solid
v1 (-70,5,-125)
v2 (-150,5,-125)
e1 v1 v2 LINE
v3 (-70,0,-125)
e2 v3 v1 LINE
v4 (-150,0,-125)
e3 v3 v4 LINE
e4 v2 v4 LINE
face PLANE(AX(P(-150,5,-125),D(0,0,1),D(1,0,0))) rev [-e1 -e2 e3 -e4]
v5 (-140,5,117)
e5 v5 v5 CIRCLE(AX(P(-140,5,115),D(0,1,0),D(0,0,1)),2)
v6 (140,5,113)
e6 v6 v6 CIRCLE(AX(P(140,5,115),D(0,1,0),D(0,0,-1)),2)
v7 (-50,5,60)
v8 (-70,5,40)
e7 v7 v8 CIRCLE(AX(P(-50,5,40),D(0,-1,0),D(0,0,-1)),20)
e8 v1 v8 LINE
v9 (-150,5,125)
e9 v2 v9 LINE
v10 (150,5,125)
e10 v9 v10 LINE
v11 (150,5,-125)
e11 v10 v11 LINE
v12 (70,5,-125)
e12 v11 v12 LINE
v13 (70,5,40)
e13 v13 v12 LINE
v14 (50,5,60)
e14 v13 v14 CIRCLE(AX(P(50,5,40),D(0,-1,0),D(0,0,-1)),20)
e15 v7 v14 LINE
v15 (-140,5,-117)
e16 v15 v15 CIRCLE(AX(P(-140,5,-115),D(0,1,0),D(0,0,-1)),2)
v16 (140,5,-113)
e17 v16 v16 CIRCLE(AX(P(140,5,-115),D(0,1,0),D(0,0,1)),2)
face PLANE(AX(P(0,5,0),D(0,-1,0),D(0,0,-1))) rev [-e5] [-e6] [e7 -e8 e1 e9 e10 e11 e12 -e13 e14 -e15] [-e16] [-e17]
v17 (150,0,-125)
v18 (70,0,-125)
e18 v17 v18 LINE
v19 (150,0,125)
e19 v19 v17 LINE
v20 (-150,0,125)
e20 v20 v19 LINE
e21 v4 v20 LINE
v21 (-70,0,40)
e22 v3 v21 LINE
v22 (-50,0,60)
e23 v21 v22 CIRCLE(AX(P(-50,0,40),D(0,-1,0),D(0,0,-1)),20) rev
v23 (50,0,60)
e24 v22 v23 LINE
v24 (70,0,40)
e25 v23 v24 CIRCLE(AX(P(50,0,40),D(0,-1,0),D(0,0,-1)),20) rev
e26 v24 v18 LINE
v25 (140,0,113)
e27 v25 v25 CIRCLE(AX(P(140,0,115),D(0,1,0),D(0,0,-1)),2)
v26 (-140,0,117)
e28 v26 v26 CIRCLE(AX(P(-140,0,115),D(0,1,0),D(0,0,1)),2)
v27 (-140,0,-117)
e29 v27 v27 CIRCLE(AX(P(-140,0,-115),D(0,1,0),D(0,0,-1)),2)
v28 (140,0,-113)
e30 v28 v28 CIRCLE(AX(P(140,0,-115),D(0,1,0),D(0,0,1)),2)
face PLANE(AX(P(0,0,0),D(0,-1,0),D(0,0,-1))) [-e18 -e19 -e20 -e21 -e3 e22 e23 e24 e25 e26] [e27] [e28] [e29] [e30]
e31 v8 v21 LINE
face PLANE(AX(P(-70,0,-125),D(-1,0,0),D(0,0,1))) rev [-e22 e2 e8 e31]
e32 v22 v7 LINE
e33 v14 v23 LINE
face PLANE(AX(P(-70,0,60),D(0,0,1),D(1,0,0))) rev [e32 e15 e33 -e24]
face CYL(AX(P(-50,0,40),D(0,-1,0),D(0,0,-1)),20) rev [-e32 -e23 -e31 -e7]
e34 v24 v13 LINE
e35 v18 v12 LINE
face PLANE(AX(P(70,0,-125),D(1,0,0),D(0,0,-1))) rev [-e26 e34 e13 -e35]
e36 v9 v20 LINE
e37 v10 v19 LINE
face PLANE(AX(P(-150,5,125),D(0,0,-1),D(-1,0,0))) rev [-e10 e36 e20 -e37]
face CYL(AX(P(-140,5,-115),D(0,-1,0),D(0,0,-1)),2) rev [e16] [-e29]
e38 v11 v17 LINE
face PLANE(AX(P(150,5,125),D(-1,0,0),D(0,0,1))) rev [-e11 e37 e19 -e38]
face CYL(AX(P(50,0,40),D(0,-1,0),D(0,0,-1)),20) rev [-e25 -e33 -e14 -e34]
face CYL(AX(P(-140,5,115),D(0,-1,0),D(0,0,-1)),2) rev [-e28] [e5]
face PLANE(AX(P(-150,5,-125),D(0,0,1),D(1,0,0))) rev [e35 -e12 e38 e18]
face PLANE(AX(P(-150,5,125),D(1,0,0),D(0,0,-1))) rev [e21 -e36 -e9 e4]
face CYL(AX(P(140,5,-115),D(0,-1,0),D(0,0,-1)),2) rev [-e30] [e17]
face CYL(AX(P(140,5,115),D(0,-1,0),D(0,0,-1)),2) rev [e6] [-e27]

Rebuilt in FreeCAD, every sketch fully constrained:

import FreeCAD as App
import Part
import Sketcher
Q = App.Units.Quantity


def edges_at(feature, points):
    """Names of the edges that pass closest to the given points."""
    edges = feature.Shape.Edges
    near = lambda p: min(range(len(edges)), key=lambda i: edges[i].distToShape(Part.Vertex(*p))[0])
    return sorted({f"Edge{near(p) + 1}" for p in points})

doc = App.newDocument("Part")
params = doc.addObject("Spreadsheet::Sheet", "Params")
for row, (alias, value) in enumerate([
    ("sketch1_diameter", "4 mm"),
    ("sketch1_width", "300 mm"),
    ("sketch1_height", "250 mm"),
    ("pad1_length", "5 mm"),
    ("sketch2_width", "140 mm"),
    ("sketch2_height", "185 mm"),
    ("fillet_radius", "20 mm"),
], start=1):
    params.set(f"A{row}", alias)
    params.set(f"B{row}", "=" + value)
    params.setAlias(f"B{row}", alias)

body = doc.addObject("PartDesign::Body", "Body")

# Sketch on XZ plane
sketch1 = body.newObject("Sketcher::SketchObject", "Sketch")
sketch1.AttachmentSupport = (doc.getObject("XZ_Plane"), [""])
sketch1.MapMode = "FlatFace"
sketch1.addGeometry(Part.LineSegment(App.Vector(-150, -125, 0), App.Vector(-150, 125, 0)), False)
sketch1.addGeometry(Part.LineSegment(App.Vector(-150, 125, 0), App.Vector(150, 125, 0)), False)
sketch1.addGeometry(Part.LineSegment(App.Vector(150, 125, 0), App.Vector(150, -125, 0)), False)
sketch1.addGeometry(Part.LineSegment(App.Vector(150, -125, 0), App.Vector(-150, -125, 0)), False)
sketch1.addGeometry(Part.Circle(App.Vector(-140, 115, 0), App.Vector(0, 0, 1), 2), False)
sketch1.addGeometry(Part.Circle(App.Vector(140, 115, 0), App.Vector(0, 0, 1), 2), False)
sketch1.addGeometry(Part.Circle(App.Vector(-140, -115, 0), App.Vector(0, 0, 1), 2), False)
sketch1.addGeometry(Part.Circle(App.Vector(140, -115, 0), App.Vector(0, 0, 1), 2), False)
sketch1.addConstraint(Sketcher.Constraint("Coincident", 0, 2, 1, 1))
sketch1.addConstraint(Sketcher.Constraint("Coincident", 1, 2, 2, 1))
sketch1.addConstraint(Sketcher.Constraint("Coincident", 2, 2, 3, 1))
sketch1.addConstraint(Sketcher.Constraint("Coincident", 3, 2, 0, 1))
sketch1.addConstraint(Sketcher.Constraint("Vertical", 0))
sketch1.addConstraint(Sketcher.Constraint("Horizontal", 1))
sketch1.addConstraint(Sketcher.Constraint("Vertical", 2))
sketch1.addConstraint(Sketcher.Constraint("Horizontal", 3))
sketch1.addConstraint(Sketcher.Constraint("Equal", 4, 5))
sketch1.addConstraint(Sketcher.Constraint("Equal", 5, 6))
sketch1.addConstraint(Sketcher.Constraint("Equal", 6, 7))
sketch1.addConstraint(Sketcher.Constraint("Symmetric", 5, 3, 6, 3, -1, 1))
sketch1.addConstraint(Sketcher.Constraint("Symmetric", 4, 3, 7, 3, -1, 1))
sketch1.addConstraint(Sketcher.Constraint("Symmetric", 0, 2, 2, 2, -1, 1))
sketch1.addConstraint(Sketcher.Constraint("Symmetric", 4, 3, 5, 3, -2))
sketch1.addConstraint(Sketcher.Constraint("Diameter", 4, Q("4 mm")))
sketch1.addConstraint(Sketcher.Constraint("DistanceX", 1, 1, 1, 2, Q("300 mm")))
sketch1.addConstraint(Sketcher.Constraint("DistanceY", 0, 1, 0, 2, Q("250 mm")))
sketch1.addConstraint(Sketcher.Constraint("DistanceX", 4, 3, -1, 1, Q("140 mm")))
sketch1.addConstraint(Sketcher.Constraint("DistanceY", -1, 1, 4, 3, Q("115 mm")))
sketch1.setExpression("Constraints[15]", "Params.sketch1_diameter")
sketch1.setExpression("Constraints[16]", "Params.sketch1_width")
sketch1.setExpression("Constraints[17]", "Params.sketch1_height")
pad1 = body.newObject("PartDesign::Pad", "Pad")
pad1.Profile = sketch1
pad1.setExpression("Length", "Params.pad1_length")
pad1.Reversed = True

# Sketch on XZ plane
sketch2 = body.newObject("Sketcher::SketchObject", "Sketch001")
sketch2.AttachmentSupport = (doc.getObject("XZ_Plane"), [""])
sketch2.MapMode = "FlatFace"
sketch2.AttachmentOffset = App.Placement(App.Vector(0, 0, -5), App.Rotation())
sketch2.addGeometry(Part.LineSegment(App.Vector(-70, -125, 0), App.Vector(-70, 60, 0)), False)
sketch2.addGeometry(Part.LineSegment(App.Vector(-70, 60, 0), App.Vector(70, 60, 0)), False)
sketch2.addGeometry(Part.LineSegment(App.Vector(70, 60, 0), App.Vector(70, -125, 0)), False)
sketch2.addGeometry(Part.LineSegment(App.Vector(70, -125, 0), App.Vector(-70, -125, 0)), False)
sketch2.addConstraint(Sketcher.Constraint("Coincident", 0, 2, 1, 1))
sketch2.addConstraint(Sketcher.Constraint("Coincident", 1, 2, 2, 1))
sketch2.addConstraint(Sketcher.Constraint("Coincident", 2, 2, 3, 1))
sketch2.addConstraint(Sketcher.Constraint("Coincident", 3, 2, 0, 1))
sketch2.addConstraint(Sketcher.Constraint("Vertical", 0))
sketch2.addConstraint(Sketcher.Constraint("Horizontal", 1))
sketch2.addConstraint(Sketcher.Constraint("Vertical", 2))
sketch2.addConstraint(Sketcher.Constraint("Horizontal", 3))
sketch2.addConstraint(Sketcher.Constraint("DistanceX", 1, 1, 1, 2, Q("140 mm")))
sketch2.addConstraint(Sketcher.Constraint("DistanceY", 0, 1, 0, 2, Q("185 mm")))
sketch2.addConstraint(Sketcher.Constraint("DistanceX", 0, 2, -1, 1, Q("70 mm")))
sketch2.addConstraint(Sketcher.Constraint("DistanceY", -1, 1, 0, 2, Q("60 mm")))
sketch2.setExpression("Constraints[8]", "Params.sketch2_width")
sketch2.setExpression("Constraints[9]", "Params.sketch2_height")
pocket1 = body.newObject("PartDesign::Pocket", "Pocket")
pocket1.Profile = sketch2
pocket1.Type = "ThroughAll"
pocket1.Reversed = True
doc.recompute()

fillet = body.newObject("PartDesign::Fillet", "Fillet")
fillet.Base = (pocket1, edges_at(pocket1, [(-70, 2.5, 60), (70, 2.5, 60)]))
fillet.setExpression("Radius", "Params.fillet_radius")

doc.recompute()
